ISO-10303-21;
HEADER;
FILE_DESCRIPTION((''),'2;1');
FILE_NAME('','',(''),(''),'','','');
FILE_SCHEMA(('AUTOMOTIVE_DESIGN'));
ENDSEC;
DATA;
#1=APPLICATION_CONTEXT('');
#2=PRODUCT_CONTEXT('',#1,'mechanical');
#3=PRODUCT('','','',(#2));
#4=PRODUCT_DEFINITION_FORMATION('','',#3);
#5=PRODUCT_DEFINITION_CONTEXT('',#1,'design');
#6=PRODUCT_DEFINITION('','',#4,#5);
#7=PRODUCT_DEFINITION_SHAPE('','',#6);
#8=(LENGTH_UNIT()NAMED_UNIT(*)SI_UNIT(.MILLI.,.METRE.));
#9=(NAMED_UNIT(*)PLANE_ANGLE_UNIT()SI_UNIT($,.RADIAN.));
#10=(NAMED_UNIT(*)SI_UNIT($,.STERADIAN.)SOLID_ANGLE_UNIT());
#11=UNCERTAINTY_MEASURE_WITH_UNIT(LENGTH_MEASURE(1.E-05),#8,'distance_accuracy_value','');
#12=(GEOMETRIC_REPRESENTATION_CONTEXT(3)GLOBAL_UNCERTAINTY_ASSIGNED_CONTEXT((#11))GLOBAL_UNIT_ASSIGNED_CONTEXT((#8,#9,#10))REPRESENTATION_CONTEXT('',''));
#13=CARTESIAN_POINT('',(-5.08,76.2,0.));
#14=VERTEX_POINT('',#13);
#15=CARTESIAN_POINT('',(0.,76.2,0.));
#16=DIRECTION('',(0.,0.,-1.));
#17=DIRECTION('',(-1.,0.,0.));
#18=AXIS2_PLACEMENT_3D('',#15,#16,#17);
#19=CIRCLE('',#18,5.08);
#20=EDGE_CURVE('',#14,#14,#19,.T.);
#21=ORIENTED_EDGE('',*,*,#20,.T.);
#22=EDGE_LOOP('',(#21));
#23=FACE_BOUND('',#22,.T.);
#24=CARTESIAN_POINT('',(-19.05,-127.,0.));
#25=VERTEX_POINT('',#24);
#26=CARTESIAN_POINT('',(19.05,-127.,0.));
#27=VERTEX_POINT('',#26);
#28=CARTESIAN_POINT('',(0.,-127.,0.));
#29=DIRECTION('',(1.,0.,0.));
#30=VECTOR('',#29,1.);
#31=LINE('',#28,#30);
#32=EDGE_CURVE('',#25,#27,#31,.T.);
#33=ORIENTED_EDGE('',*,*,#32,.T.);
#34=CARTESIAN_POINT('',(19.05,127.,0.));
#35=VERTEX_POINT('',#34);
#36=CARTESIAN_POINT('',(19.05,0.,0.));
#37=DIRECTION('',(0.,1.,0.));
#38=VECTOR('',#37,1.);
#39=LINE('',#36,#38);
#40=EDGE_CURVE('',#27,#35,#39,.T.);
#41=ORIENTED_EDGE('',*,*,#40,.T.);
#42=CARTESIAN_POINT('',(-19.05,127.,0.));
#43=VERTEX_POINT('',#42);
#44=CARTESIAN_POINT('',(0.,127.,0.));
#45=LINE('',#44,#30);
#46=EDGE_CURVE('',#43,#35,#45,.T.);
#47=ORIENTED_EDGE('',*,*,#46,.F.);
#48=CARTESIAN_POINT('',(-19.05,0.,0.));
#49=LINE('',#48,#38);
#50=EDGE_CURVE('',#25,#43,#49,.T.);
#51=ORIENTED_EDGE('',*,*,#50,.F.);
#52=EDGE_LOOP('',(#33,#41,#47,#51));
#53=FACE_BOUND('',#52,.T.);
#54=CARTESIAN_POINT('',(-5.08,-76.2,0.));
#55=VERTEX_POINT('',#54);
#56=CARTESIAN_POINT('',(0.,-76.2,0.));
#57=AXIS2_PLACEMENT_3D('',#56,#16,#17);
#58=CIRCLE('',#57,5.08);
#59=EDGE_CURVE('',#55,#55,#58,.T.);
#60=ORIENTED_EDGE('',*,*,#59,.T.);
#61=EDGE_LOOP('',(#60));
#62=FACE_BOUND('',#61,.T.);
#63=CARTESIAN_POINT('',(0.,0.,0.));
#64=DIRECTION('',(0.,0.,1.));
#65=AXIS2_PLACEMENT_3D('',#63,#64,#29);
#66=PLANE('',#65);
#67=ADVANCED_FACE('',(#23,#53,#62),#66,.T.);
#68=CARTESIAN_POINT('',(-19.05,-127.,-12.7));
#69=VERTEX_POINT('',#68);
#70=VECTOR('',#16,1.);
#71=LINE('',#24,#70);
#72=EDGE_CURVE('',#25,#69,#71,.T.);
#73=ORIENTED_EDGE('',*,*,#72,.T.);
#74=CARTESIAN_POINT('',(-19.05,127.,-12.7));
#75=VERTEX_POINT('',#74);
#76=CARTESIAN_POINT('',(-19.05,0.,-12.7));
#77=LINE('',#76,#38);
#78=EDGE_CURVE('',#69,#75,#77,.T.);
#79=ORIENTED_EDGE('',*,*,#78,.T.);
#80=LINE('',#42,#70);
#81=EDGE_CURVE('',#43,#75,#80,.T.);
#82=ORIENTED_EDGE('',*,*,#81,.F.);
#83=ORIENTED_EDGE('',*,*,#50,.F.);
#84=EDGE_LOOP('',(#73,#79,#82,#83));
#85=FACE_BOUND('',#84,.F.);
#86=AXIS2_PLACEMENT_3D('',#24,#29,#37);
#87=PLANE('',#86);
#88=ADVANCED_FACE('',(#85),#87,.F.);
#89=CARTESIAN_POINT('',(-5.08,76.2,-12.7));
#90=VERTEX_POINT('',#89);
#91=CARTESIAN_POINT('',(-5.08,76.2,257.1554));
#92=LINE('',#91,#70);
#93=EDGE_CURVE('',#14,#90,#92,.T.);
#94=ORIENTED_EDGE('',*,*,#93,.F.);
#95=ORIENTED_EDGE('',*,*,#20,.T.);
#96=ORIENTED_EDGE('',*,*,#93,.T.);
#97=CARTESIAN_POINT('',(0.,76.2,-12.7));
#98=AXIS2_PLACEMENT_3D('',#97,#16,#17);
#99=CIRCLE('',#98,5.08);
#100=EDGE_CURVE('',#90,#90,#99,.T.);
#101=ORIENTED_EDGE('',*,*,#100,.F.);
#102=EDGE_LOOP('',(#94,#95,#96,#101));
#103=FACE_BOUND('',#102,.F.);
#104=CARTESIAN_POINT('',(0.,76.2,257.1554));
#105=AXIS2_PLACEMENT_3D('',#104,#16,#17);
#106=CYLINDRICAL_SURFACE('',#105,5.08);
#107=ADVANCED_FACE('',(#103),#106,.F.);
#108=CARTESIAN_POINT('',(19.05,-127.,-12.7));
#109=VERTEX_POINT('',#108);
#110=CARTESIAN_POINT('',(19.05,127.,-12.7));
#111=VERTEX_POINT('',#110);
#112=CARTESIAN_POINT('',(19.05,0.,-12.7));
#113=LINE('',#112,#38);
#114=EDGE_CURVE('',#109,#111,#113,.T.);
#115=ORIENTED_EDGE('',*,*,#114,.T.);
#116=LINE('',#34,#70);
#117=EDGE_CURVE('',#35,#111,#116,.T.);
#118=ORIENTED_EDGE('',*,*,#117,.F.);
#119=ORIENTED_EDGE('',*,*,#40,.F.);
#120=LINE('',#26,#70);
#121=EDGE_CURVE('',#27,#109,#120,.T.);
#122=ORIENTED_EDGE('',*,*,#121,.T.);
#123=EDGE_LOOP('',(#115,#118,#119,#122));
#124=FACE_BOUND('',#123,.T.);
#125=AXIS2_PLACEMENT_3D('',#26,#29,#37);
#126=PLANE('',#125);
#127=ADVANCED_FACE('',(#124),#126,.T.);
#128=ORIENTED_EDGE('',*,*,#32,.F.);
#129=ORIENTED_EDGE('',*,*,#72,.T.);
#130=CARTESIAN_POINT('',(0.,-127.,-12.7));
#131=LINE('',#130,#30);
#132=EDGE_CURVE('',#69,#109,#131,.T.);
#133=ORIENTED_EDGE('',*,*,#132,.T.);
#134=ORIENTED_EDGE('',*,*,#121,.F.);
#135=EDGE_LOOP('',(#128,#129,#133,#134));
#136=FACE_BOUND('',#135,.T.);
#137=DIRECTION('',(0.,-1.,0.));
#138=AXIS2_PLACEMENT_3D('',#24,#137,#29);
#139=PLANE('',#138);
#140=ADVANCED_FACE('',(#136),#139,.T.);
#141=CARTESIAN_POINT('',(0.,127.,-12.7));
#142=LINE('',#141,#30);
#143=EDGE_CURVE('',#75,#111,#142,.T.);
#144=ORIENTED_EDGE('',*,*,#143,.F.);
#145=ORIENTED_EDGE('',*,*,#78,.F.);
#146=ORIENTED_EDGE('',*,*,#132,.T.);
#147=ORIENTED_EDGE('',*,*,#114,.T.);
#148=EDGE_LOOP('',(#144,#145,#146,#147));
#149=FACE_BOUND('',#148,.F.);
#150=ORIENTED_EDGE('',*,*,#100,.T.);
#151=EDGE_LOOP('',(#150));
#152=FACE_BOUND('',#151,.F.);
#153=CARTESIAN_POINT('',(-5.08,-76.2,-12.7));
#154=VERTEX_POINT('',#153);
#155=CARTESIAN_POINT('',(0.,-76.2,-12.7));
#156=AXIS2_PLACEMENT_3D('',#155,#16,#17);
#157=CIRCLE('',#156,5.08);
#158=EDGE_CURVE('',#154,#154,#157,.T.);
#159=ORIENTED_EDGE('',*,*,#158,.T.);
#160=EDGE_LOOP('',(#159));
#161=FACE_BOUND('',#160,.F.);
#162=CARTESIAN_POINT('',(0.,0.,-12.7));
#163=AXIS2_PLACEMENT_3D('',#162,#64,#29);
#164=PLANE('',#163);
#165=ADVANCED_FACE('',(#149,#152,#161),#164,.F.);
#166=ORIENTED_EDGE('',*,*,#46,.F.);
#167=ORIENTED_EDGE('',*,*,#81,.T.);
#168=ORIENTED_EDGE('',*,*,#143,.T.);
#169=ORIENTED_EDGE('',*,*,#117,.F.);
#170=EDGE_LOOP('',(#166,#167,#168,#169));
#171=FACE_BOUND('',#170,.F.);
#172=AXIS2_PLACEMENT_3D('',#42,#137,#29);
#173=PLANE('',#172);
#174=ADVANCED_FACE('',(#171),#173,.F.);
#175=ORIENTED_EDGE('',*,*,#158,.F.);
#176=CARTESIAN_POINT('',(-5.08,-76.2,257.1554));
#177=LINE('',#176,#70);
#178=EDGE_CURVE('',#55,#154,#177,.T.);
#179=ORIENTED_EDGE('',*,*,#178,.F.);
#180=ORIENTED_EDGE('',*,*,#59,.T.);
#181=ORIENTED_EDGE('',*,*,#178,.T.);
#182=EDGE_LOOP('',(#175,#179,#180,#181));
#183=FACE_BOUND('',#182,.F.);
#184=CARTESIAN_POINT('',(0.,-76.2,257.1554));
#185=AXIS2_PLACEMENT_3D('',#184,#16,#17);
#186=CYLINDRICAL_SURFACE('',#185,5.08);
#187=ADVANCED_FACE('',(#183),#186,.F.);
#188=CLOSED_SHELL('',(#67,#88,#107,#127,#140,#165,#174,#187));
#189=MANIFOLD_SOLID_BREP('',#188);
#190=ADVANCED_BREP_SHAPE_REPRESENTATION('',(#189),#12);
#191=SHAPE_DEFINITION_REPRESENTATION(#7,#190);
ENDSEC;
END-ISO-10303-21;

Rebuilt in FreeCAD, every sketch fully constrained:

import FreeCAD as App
import Part
import Sketcher
from FreeCAD import Vector
Q = App.Units.Quantity

doc = App.newDocument("Part")
body = doc.addObject("PartDesign::Body", "Body")

sketch1 = body.newObject("Sketcher::SketchObject", "Sketch")
sketch1.AttachmentSupport = (doc.getObject("XY_Plane"), [""])
sketch1.MapMode = "FlatFace"
sketch1.addGeometry([
    Part.LineSegment(Vector(-19.05, 127, 0), Vector(-19.05, -127, 0)),
    Part.LineSegment(Vector(-19.05, -127, 0), Vector(19.05, -127, 0)),
    Part.LineSegment(Vector(19.05, -127, 0), Vector(19.05, 127, 0)),
    Part.LineSegment(Vector(19.05, 127, 0), Vector(-19.05, 127, 0)),
], False)
sketch1.addConstraint([
    Sketcher.Constraint("Coincident", 0, 2, 1, 1),
    Sketcher.Constraint("Coincident", 1, 2, 2, 1),
    Sketcher.Constraint("Coincident", 2, 2, 3, 1),
    Sketcher.Constraint("Coincident", 3, 2, 0, 1),
    Sketcher.Constraint("Vertical", 0),
    Sketcher.Constraint("Horizontal", 1),
    Sketcher.Constraint("Vertical", 2),
    Sketcher.Constraint("Horizontal", 3),
    Sketcher.Constraint("Symmetric", 0, 2, 2, 2, -1, 1),
    Sketcher.Constraint("DistanceY", 0, 2, 0, 1, Q("10 in")),
    Sketcher.Constraint("DistanceX", 1, 1, 1, 2, Q("1.5 in")),
])
pad1 = body.newObject("PartDesign::Pad", "Pad")
pad1.Profile = sketch1
pad1.Length = Q("0.5 in")
pad1.Reversed = True

sketch2 = body.newObject("Sketcher::SketchObject", "Sketch001")
sketch2.AttachmentSupport = (doc.getObject("XY_Plane"), [""])
sketch2.MapMode = "FlatFace"
sketch2.addGeometry([
    Part.Circle(Vector(0, 76.2, 0), Vector(0, 0, 1), 5.08),
    Part.Circle(Vector(0, -76.2, 0), Vector(0, 0, 1), 5.08),
], False)
sketch2.addConstraint([
    Sketcher.Constraint("Equal", 0, 1),
    Sketcher.Constraint("Symmetric", 0, 3, 1, 3, -1, 1),
    Sketcher.Constraint("PointOnObject", 0, 3, -2),
    Sketcher.Constraint("Diameter", 0, Q("0.4 in")),
    Sketcher.Constraint("DistanceY", -1, 1, 0, 3, Q("3 in")),
])
doc.recompute()
hole = body.newObject("PartDesign::Hole", "Hole")
hole.Profile = sketch2
hole.ThreadType = "None"
hole.Diameter = Q("0.4 in")
hole.DepthType = "ThroughAll"

doc.recompute()
